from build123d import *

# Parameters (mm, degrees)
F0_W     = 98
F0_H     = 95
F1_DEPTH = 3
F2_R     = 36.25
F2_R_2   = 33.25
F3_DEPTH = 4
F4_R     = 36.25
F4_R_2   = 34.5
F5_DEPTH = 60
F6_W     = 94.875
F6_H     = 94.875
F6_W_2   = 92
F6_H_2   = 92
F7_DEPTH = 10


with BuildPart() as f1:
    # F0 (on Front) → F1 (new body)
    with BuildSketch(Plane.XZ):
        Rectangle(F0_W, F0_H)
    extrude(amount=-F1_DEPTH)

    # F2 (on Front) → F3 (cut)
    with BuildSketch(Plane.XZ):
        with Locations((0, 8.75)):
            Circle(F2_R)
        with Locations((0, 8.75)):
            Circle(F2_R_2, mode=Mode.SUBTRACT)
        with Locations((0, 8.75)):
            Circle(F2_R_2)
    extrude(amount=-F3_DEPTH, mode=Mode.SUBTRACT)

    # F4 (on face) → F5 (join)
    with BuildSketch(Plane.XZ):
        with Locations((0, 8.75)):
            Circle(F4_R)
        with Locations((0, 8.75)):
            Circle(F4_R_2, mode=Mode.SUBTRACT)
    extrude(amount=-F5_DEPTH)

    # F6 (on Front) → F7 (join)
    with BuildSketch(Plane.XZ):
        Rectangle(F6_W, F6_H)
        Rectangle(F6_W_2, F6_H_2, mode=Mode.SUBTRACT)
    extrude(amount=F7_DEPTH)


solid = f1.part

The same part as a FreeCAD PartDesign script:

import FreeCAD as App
import Part
import Sketcher


def add_polygon(sketch, points):
    """Adds a closed chain of lines whose ends are joined by coincident constraints."""
    first, n = sketch.GeometryCount, len(points)
    for a, b in zip(points, points[1:] + points[:1]):
        sketch.addGeometry(Part.LineSegment(App.Vector(*a, 0), App.Vector(*b, 0)), False)
    for i in range(n):
        sketch.addConstraint(Sketcher.Constraint("Coincident", first + i, 2, first + (i + 1) % n, 1))

doc = App.newDocument("Part")
body = doc.addObject("PartDesign::Body", "Body")

# Sketch on XZ plane
sketch1 = doc.addObject("Sketcher::SketchObject", "Sketch")
body.addObject(sketch1)
sketch1.AttachmentSupport = (doc.XZ_Plane, [""])
sketch1.MapMode = "FlatFace"
add_polygon(sketch1, [(-49, 48), (-49, -48), (49, -48), (49, 48)])  # lines 0-3
sketch1.addConstraint([
    Sketcher.Constraint("Vertical", 0),
    Sketcher.Constraint("Horizontal", 1),
    Sketcher.Constraint("Vertical", 2),
    Sketcher.Constraint("Horizontal", 3),
    Sketcher.Constraint("Symmetric", 0, 2, 2, 2, -1, 1),
    Sketcher.Constraint("DistanceX", 1, 1, 1, 2, 98.0),
    Sketcher.Constraint("DistanceY", 0, 2, 0, 1, 95.0),
])
pad1 = doc.addObject("PartDesign::Pad", "Pad")
body.addObject(pad1)
pad1.Profile = sketch1
pad1.Length = 3
pad1.Reversed = True

# Sketch on XZ plane
sketch2 = doc.addObject("Sketcher::SketchObject", "Sketch001")
body.addObject(sketch2)
sketch2.AttachmentSupport = (doc.XZ_Plane, [""])
sketch2.MapMode = "FlatFace"
sketch2.addGeometry(Part.Circle(App.Vector(0, 9, 0), App.Vector(0, 0, 1), 36), False)
sketch2.addConstraint([
    Sketcher.Constraint("PointOnObject", 0, 3, -2),
    Sketcher.Constraint("Diameter", 0, 72.5),
    Sketcher.Constraint("DistanceY", -1, 1, 0, 3, 8.75),
])
pocket1 = doc.addObject("PartDesign::Pocket", "Pocket")
body.addObject(pocket1)
pocket1.Profile = sketch2
pocket1.Length = 4

# Sketch on XZ plane
sketch3 = doc.addObject("Sketcher::SketchObject", "Sketch002")
body.addObject(sketch3)
sketch3.AttachmentSupport = (doc.XZ_Plane, [""])
sketch3.MapMode = "FlatFace"
sketch3.addGeometry([
    Part.Circle(App.Vector(0, 9, 0), App.Vector(0, 0, 1), 36),
    Part.Circle(App.Vector(0, 9, 0), App.Vector(0, 0, 1), 34),
], False)
sketch3.addConstraint([
    Sketcher.Constraint("Coincident", 1, 3, 0, 3),
    Sketcher.Constraint("PointOnObject", 0, 3, -2),
    Sketcher.Constraint("Diameter", 1, 69.0),
    Sketcher.Constraint("Diameter", 0, 72.5),
    Sketcher.Constraint("DistanceY", -1, 1, 0, 3, 8.75),
])
pad2 = doc.addObject("PartDesign::Pad", "Pad001")
body.addObject(pad2)
pad2.Profile = sketch3
pad2.Length = 60
pad2.Reversed = True

# Sketch on XZ plane
sketch4 = doc.addObject("Sketcher::SketchObject", "Sketch003")
body.addObject(sketch4)
sketch4.AttachmentSupport = (doc.XZ_Plane, [""])
sketch4.MapMode = "FlatFace"
add_polygon(sketch4, [(-47, 47), (-47, -47), (47, -47), (47, 47)])  # lines 0-3
add_polygon(sketch4, [(46, -46), (-46, -46), (-46, 46), (46, 46)])  # lines 4-7
sketch4.addConstraint([
    Sketcher.Constraint("Vertical", 0),
    Sketcher.Constraint("Horizontal", 1),
    Sketcher.Constraint("Vertical", 2),
    Sketcher.Constraint("Horizontal", 3),
    Sketcher.Constraint("Horizontal", 4),
    Sketcher.Constraint("Vertical", 5),
    Sketcher.Constraint("Horizontal", 6),
    Sketcher.Constraint("Vertical", 7),
    Sketcher.Constraint("Symmetric", 0, 2, 2, 2, -1, 1),
    Sketcher.Constraint("Symmetric", 4, 2, 6, 2, -1, 1),
    Sketcher.Constraint("Equal", 3, 0),
    Sketcher.Constraint("Equal", 6, 5),
    Sketcher.Constraint("DistanceX", 4, 2, 4, 1, 92.0),
    Sketcher.Constraint("DistanceX", 1, 1, 1, 2, 94.875),
])
pad3 = doc.addObject("PartDesign::Pad", "Pad002")
body.addObject(pad3)
pad3.Profile = sketch4
pad3.Length = 10

doc.recompute()
